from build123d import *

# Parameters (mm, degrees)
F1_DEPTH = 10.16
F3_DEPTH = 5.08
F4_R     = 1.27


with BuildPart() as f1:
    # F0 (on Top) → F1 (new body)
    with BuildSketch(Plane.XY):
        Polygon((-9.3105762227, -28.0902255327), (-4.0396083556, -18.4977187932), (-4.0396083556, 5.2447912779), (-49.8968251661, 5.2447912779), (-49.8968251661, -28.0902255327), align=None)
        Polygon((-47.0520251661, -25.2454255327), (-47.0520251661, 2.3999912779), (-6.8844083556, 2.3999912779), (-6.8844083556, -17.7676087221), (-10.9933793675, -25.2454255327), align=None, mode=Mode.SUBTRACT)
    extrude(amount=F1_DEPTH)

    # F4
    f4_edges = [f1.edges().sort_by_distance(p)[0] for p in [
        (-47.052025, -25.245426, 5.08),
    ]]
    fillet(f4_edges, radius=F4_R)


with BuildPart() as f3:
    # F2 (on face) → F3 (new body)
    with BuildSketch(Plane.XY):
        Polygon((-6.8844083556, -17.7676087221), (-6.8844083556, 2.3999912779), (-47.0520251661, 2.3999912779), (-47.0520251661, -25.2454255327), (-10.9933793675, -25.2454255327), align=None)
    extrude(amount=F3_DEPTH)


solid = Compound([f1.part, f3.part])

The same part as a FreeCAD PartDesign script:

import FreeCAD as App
import Part
import Sketcher
Q = App.Units.Quantity


def edges_at(feature, points):
    """Names of the edges that pass closest to the given points."""
    edges = feature.Shape.Edges
    near = lambda p: min(range(len(edges)), key=lambda i: edges[i].distToShape(Part.Vertex(*p))[0])
    return sorted({f"Edge{near(p) + 1}" for p in points})

doc = App.newDocument("Part")
body = doc.addObject("PartDesign::Body", "Body")

# Sketch on XY plane
sketch1 = body.newObject("Sketcher::SketchObject", "Sketch")
sketch1.AttachmentSupport = (doc.getObject("XY_Plane"), [""])
sketch1.MapMode = "FlatFace"
sketch1.addGeometry(Part.LineSegment(App.Vector(-9, -28, 0), App.Vector(-4, -18, 0)), False)
sketch1.addGeometry(Part.LineSegment(App.Vector(-4, -18, 0), App.Vector(-4, 5, 0)), False)
sketch1.addGeometry(Part.LineSegment(App.Vector(-4, 5, 0), App.Vector(-50, 5, 0)), False)
sketch1.addGeometry(Part.LineSegment(App.Vector(-50, 5, 0), App.Vector(-50, -28, 0)), False)
sketch1.addGeometry(Part.LineSegment(App.Vector(-50, -28, 0), App.Vector(-9, -28, 0)), False)
sketch1.addGeometry(Part.LineSegment(App.Vector(-11, -25, 0), App.Vector(-47, -25, 0)), False)
sketch1.addGeometry(Part.LineSegment(App.Vector(-47, -25, 0), App.Vector(-47, 2, 0)), False)
sketch1.addGeometry(Part.LineSegment(App.Vector(-47, 2, 0), App.Vector(-7, 2, 0)), False)
sketch1.addGeometry(Part.LineSegment(App.Vector(-7, 2, 0), App.Vector(-7, -18, 0)), False)
sketch1.addGeometry(Part.LineSegment(App.Vector(-7, -18, 0), App.Vector(-11, -25, 0)), False)
sketch1.addConstraint(Sketcher.Constraint("Coincident", 0, 2, 1, 1))
sketch1.addConstraint(Sketcher.Constraint("Coincident", 1, 2, 2, 1))
sketch1.addConstraint(Sketcher.Constraint("Coincident", 2, 2, 3, 1))
sketch1.addConstraint(Sketcher.Constraint("Coincident", 3, 2, 4, 1))
sketch1.addConstraint(Sketcher.Constraint("Coincident", 4, 2, 0, 1))
sketch1.addConstraint(Sketcher.Constraint("Coincident", 5, 2, 6, 1))
sketch1.addConstraint(Sketcher.Constraint("Coincident", 6, 2, 7, 1))
sketch1.addConstraint(Sketcher.Constraint("Coincident", 7, 2, 8, 1))
sketch1.addConstraint(Sketcher.Constraint("Coincident", 8, 2, 9, 1))
sketch1.addConstraint(Sketcher.Constraint("Coincident", 9, 2, 5, 1))
sketch1.addConstraint(Sketcher.Constraint("Vertical", 1))
sketch1.addConstraint(Sketcher.Constraint("Horizontal", 2))
sketch1.addConstraint(Sketcher.Constraint("Vertical", 3))
sketch1.addConstraint(Sketcher.Constraint("Horizontal", 4))
sketch1.addConstraint(Sketcher.Constraint("Horizontal", 5))
sketch1.addConstraint(Sketcher.Constraint("Vertical", 6))
sketch1.addConstraint(Sketcher.Constraint("Horizontal", 7))
sketch1.addConstraint(Sketcher.Constraint("Vertical", 8))
sketch1.addConstraint(Sketcher.Constraint("Parallel", 0, 9))
sketch1.addConstraint(Sketcher.Constraint("DistanceY", 8, 2, 8, 1, Q("0.794 in")))
sketch1.addConstraint(Sketcher.Constraint("DistanceX", 3, 2, 5, 2, Q("0.112 in")))
sketch1.addConstraint(Sketcher.Constraint("DistanceY", 3, 2, 5, 2, Q("0.112 in")))
sketch1.addConstraint(Sketcher.Constraint("DistanceY", 6, 2, 2, 2, Q("0.112 in")))
sketch1.addConstraint(Sketcher.Constraint("DistanceX", 7, 2, 1, 2, Q("0.112 in")))
sketch1.addConstraint(Sketcher.Constraint("DistanceX", 4, 1, 4, 2, Q("40.586249 mm")))
sketch1.addConstraint(Sketcher.Constraint("DistanceY", 1, 1, 1, 2, Q("23.74251 mm")))
sketch1.addConstraint(Sketcher.Constraint("DistanceX", 2, 2, 2, 1, Q("45.857217 mm")))
sketch1.addConstraint(Sketcher.Constraint("DistanceX", 5, 2, 5, 1, Q("36.058646 mm")))
sketch1.addConstraint(Sketcher.Constraint("DistanceX", 0, 2, -1, 1, Q("4.039608 mm")))
sketch1.addConstraint(Sketcher.Constraint("DistanceY", 0, 2, -1, 1, Q("18.497719 mm")))
pad1 = body.newObject("PartDesign::Pad", "Pad")
pad1.Profile = sketch1
pad1.Length = Q("0.4 in")
doc.recompute()

fillet = body.newObject("PartDesign::Fillet", "Fillet")
fillet.Base = (pad1, edges_at(pad1, [(-47.052, -25.245, 5.08)]))
fillet.Radius = Q("0.05 in")
body2 = doc.addObject("PartDesign::Body", "Body001")

# Sketch on XY plane
sketch2 = body2.newObject("Sketcher::SketchObject", "Sketch001")
sketch2.AttachmentSupport = (doc.getObject("XY_Plane001"), [""])
sketch2.MapMode = "FlatFace"
sketch2.addGeometry(Part.LineSegment(App.Vector(-7, -18, 0), App.Vector(-7, 2, 0)), False)
sketch2.addGeometry(Part.LineSegment(App.Vector(-7, 2, 0), App.Vector(-47, 2, 0)), False)
sketch2.addGeometry(Part.LineSegment(App.Vector(-47, 2, 0), App.Vector(-47, -25, 0)), False)
sketch2.addGeometry(Part.LineSegment(App.Vector(-47, -25, 0), App.Vector(-11, -25, 0)), False)
sketch2.addGeometry(Part.LineSegment(App.Vector(-11, -25, 0), App.Vector(-7, -18, 0)), False)
sketch2.addConstraint(Sketcher.Constraint("Coincident", 0, 2, 1, 1))
sketch2.addConstraint(Sketcher.Constraint("Coincident", 1, 2, 2, 1))
sketch2.addConstraint(Sketcher.Constraint("Coincident", 2, 2, 3, 1))
sketch2.addConstraint(Sketcher.Constraint("Coincident", 3, 2, 4, 1))
sketch2.addConstraint(Sketcher.Constraint("Coincident", 4, 2, 0, 1))
sketch2.addConstraint(Sketcher.Constraint("Vertical", 0))
sketch2.addConstraint(Sketcher.Constraint("Horizontal", 1))
sketch2.addConstraint(Sketcher.Constraint("Vertical", 2))
sketch2.addConstraint(Sketcher.Constraint("Horizontal", 3))
sketch2.addConstraint(Sketcher.Constraint("DistanceY", 0, 1, 0, 2, Q("0.794 in")))
sketch2.addConstraint(Sketcher.Constraint("DistanceX", 1, 2, 1, 1, Q("40.167617 mm")))
sketch2.addConstraint(Sketcher.Constraint("DistanceX", 3, 1, 3, 2, Q("36.058646 mm")))
sketch2.addConstraint(Sketcher.Constraint("DistanceY", 2, 2, 2, 1, Q("27.645417 mm")))
sketch2.addConstraint(Sketcher.Constraint("DistanceX", 0, 2, -1, 1, Q("6.884408 mm")))
sketch2.addConstraint(Sketcher.Constraint("DistanceY", -1, 1, 0, 2, Q("2.399991 mm")))
pad2 = body2.newObject("PartDesign::Pad", "Pad001")
pad2.Profile = sketch2
pad2.Length = Q("0.2 in")

doc.recompute()
